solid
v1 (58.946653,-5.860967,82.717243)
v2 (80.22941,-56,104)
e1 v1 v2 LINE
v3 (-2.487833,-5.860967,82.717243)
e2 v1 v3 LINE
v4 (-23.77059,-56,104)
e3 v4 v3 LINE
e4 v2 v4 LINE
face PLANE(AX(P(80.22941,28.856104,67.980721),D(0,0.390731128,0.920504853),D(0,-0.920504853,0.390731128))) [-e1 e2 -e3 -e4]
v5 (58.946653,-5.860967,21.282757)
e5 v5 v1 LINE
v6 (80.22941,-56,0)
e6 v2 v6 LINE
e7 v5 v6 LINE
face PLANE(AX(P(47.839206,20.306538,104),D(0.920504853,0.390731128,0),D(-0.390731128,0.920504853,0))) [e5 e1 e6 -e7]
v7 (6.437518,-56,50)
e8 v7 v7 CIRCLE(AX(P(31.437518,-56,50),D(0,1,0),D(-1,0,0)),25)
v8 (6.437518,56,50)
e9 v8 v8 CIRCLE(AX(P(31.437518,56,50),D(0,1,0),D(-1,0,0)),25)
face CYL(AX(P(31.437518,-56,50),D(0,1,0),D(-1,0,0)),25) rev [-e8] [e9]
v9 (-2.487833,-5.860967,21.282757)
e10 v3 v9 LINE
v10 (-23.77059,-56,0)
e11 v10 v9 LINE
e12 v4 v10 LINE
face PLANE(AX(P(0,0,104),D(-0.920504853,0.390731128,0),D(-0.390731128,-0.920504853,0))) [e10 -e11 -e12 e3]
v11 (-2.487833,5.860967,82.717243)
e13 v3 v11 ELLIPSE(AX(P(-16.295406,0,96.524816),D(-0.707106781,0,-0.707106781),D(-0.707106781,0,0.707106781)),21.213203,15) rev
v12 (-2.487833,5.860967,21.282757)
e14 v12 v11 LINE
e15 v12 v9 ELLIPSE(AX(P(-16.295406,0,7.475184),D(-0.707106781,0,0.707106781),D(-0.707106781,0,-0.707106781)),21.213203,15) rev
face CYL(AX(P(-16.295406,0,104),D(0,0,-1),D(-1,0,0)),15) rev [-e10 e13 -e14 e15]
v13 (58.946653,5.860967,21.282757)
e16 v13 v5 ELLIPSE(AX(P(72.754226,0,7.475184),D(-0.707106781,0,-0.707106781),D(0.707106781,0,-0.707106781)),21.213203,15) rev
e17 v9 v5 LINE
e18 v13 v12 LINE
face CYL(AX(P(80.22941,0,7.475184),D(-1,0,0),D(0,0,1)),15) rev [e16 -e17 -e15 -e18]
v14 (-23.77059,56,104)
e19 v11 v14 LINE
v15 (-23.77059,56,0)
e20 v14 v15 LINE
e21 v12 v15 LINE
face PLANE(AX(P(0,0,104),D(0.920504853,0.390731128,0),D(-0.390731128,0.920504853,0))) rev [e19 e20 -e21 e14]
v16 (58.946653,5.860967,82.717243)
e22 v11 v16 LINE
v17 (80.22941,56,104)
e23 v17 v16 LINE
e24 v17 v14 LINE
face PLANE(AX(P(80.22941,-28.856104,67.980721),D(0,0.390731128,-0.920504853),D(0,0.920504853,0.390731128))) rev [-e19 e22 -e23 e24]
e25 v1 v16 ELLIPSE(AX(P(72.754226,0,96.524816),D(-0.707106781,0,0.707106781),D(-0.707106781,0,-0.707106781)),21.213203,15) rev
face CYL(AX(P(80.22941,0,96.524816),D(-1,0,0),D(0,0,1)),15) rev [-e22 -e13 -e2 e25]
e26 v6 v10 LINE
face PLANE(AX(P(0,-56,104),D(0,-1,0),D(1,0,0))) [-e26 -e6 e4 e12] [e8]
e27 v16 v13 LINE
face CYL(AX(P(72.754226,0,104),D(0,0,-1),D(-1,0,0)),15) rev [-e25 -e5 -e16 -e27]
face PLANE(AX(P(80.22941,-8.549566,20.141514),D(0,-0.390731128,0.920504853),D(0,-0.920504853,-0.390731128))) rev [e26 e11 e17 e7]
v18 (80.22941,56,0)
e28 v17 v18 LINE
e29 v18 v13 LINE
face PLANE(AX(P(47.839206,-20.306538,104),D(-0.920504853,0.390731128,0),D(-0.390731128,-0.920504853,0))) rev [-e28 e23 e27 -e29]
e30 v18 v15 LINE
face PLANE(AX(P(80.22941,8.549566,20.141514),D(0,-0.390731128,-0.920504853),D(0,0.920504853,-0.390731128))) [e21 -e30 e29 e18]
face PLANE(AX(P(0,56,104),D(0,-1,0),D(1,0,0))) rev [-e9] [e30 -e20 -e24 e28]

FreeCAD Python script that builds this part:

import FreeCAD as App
import Part
import Sketcher
Q = App.Units.Quantity


def edges_at(feature, points):
    """Names of the edges that pass closest to the given points."""
    edges = feature.Shape.Edges
    near = lambda p: min(range(len(edges)), key=lambda i: edges[i].distToShape(Part.Vertex(*p))[0])
    return sorted({f"Edge{near(p) + 1}" for p in points})


def add_polygon(sketch, points):
    """Adds a closed chain of lines whose ends are joined by coincident constraints."""
    first, n = sketch.GeometryCount, len(points)
    for a, b in zip(points, points[1:] + points[:1]):
        sketch.addGeometry(Part.LineSegment(App.Vector(*a, 0), App.Vector(*b, 0)), False)
    for i in range(n):
        sketch.addConstraint(Sketcher.Constraint("Coincident", first + i, 2, first + (i + 1) % n, 1))

doc = App.newDocument("Part")
body = doc.addObject("PartDesign::Body", "Body")

# Sketch on XY plane
sketch1 = body.newObject("Sketcher::SketchObject", "Sketch")
sketch1.AttachmentSupport = (doc.getObject("XY_Plane"), [""])
sketch1.MapMode = "FlatFace"
add_polygon(sketch1, [(80, 56), (-24, 56), (0, 0), (-24, -56), (80, -56), (56, 0)])  # lines 0-5
sketch1.addConstraint([
    Sketcher.Constraint("Horizontal", 0),
    Sketcher.Constraint("Horizontal", 3),
    Sketcher.Constraint("Coincident", 1, 2, -1, 1),
    Sketcher.Constraint("Symmetric", 0, 2, 2, 2, -1),
    Sketcher.Constraint("PointOnObject", 4, 2, -1),
    Sketcher.Constraint("Parallel", 1, 4),
    Sketcher.Constraint("Parallel", 2, 5),
    Sketcher.Constraint("DistanceX", 0, 2, 0, 1, Q("104 mm")),
    Sketcher.Constraint("Angle", 1, Q("-67 deg")),
    Sketcher.Constraint("DistanceY", -1, 1, 0, 2, Q("56 mm")),
])
pad1 = body.newObject("PartDesign::Pad", "Pad")
pad1.Profile = sketch1
pad1.Length = 104

# Sketch on YZ plane
sketch2 = body.newObject("Sketcher::SketchObject", "Sketch001")
sketch2.AttachmentSupport = (doc.getObject("YZ_Plane"), [""])
sketch2.MapMode = "FlatFace"
add_polygon(sketch2, [(56, 0), (0, 24), (-56, 0)])  # lines 0-2
add_polygon(sketch2, [(56, 104), (-56, 104), (0, 80)])  # lines 3-5
sketch2.addConstraint([
    Sketcher.Constraint("Horizontal", 2),
    Sketcher.Constraint("Horizontal", 3),
    Sketcher.Constraint("Symmetric", 1, 2, 2, 2, -1, 1),
    Sketcher.Constraint("PointOnObject", 0, 2, -2),
    Sketcher.Constraint("PointOnObject", 4, 2, -2),
    Sketcher.Constraint("Parallel", 0, 4),
    Sketcher.Constraint("Parallel", 1, 5),
    Sketcher.Constraint("Vertical", 1, 2, 3, 2),
    Sketcher.Constraint("DistanceX", 2, 1, 2, 2, Q("112 mm")),
    Sketcher.Constraint("Angle", 0, Q("157 deg")),
    Sketcher.Constraint("DistanceY", -1, 1, 3, 2, Q("104 mm")),
])
pocket1 = body.newObject("PartDesign::Pocket", "Pocket")
pocket1.Profile = sketch2
pocket1.Type = "ThroughAll"
pocket1.Midplane = True

# Sketch on XZ plane
sketch3 = body.newObject("Sketcher::SketchObject", "Sketch002")
sketch3.AttachmentSupport = (doc.getObject("XZ_Plane"), [""])
sketch3.MapMode = "FlatFace"
sketch3.AttachmentOffset = App.Placement(App.Vector(0, 0, -56), App.Rotation())
sketch3.addGeometry(Part.Circle(App.Vector(31, 50, 0), App.Vector(0, 0, 1), 25), False)
sketch3.addConstraint([
    Sketcher.Constraint("Diameter", 0, Q("50 mm")),
    Sketcher.Constraint("DistanceY", -1, 1, 0, 3, Q("50 mm")),
    Sketcher.Constraint("DistanceX", -1, 1, 0, 3, Q("31.437518 mm")),
])
pocket2 = body.newObject("PartDesign::Pocket", "Pocket001")
pocket2.Profile = sketch3
pocket2.Type = "ThroughAll"
pocket2.Reversed = True
doc.recompute()

fillet = body.newObject("PartDesign::Fillet", "Fillet")
fillet.Base = (pocket2, edges_at(pocket2, [
    (56.459, 0, 52),
    (0, 0, 52),
    (28.229, 0, 23.771),
    (28.229, 0, 80.229),
]))
fillet.Radius = 15

doc.recompute()
